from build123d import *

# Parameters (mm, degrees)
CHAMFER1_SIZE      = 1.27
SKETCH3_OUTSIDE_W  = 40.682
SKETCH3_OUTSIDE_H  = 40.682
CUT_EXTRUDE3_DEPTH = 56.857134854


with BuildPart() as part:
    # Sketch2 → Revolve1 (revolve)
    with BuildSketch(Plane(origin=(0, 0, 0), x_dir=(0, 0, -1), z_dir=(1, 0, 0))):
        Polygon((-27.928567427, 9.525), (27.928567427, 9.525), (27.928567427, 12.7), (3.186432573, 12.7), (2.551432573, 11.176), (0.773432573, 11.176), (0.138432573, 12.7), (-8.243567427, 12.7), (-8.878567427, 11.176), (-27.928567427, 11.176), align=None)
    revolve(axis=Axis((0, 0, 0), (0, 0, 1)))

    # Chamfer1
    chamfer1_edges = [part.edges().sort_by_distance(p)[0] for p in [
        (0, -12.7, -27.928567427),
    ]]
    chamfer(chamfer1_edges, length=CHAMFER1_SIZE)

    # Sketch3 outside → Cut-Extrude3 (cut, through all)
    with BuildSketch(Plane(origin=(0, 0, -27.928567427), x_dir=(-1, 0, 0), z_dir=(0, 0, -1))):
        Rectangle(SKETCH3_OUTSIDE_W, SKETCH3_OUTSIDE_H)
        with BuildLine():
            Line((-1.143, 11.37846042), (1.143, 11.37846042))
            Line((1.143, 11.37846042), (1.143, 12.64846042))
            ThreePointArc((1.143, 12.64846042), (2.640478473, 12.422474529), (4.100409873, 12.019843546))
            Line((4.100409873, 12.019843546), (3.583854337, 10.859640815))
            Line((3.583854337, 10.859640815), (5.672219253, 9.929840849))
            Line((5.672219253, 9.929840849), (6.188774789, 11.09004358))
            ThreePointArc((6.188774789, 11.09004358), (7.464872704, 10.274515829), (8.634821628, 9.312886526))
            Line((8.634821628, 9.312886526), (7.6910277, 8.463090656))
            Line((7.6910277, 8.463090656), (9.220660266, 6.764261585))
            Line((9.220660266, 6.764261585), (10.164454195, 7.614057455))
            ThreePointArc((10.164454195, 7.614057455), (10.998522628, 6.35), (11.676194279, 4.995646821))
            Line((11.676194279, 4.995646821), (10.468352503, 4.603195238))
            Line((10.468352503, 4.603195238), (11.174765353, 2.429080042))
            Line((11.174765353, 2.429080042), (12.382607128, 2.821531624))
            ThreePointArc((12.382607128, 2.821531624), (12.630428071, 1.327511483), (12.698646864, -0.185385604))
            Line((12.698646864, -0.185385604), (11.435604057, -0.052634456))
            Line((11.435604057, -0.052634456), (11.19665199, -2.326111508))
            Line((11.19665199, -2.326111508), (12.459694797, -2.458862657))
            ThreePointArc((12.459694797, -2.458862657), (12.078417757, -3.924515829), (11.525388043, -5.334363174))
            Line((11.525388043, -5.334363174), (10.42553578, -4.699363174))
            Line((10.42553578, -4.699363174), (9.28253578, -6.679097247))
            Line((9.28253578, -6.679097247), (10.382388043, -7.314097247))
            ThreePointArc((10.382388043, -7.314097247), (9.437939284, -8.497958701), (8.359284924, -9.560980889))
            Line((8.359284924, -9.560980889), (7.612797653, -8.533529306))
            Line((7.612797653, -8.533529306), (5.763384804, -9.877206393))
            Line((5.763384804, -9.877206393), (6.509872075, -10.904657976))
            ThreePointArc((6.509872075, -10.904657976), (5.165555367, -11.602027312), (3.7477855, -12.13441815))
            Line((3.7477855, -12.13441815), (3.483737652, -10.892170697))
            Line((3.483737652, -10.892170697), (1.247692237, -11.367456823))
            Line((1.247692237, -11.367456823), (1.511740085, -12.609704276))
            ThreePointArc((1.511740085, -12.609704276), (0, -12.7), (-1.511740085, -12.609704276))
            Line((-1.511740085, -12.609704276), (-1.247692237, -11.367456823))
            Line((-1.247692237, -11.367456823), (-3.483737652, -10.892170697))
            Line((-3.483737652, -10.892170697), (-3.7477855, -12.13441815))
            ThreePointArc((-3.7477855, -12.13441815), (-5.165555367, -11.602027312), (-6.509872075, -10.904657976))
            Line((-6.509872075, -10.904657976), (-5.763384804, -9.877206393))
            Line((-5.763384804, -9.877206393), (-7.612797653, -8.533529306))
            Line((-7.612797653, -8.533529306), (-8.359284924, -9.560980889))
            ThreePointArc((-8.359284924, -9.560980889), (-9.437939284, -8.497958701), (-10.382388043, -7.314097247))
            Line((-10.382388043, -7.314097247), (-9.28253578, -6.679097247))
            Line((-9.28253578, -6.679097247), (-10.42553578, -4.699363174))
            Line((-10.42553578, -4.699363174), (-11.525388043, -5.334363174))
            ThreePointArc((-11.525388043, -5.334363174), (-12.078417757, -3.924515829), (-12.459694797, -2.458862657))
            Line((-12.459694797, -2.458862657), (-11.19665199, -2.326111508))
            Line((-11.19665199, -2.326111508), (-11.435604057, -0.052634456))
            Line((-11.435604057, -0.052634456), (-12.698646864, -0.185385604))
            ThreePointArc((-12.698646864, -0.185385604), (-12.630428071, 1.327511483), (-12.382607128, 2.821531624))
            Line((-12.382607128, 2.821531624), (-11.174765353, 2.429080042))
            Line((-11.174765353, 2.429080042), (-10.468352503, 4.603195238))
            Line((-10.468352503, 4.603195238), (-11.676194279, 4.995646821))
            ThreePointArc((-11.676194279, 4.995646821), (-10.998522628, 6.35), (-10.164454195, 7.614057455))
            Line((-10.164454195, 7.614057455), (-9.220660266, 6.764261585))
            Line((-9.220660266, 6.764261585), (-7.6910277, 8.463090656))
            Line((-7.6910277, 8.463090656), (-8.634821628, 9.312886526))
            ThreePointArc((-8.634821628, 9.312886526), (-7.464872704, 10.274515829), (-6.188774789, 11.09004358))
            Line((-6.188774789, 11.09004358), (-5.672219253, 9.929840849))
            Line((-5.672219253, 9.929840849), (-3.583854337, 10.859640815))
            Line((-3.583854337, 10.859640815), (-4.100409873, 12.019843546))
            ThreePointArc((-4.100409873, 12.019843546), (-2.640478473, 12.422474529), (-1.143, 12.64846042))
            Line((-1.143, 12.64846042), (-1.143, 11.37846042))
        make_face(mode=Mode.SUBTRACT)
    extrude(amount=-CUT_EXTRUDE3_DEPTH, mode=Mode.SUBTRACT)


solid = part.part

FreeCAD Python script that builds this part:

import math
import FreeCAD as App
import Part
import Sketcher

V = App.Vector
Q = App.Units.Quantity


def edges_at(feature, points):
    """Names of the edges that pass closest to the given points."""
    edges = feature.Shape.Edges
    near = lambda p: min(range(len(edges)), key=lambda i: edges[i].distToShape(Part.Vertex(*p))[0])
    return sorted({f"Edge{near(p) + 1}" for p in points})


def add_polygon(sketch, points):
    """Adds a closed chain of lines whose ends are joined by coincident constraints."""
    first, n = sketch.GeometryCount, len(points)
    for a, b in zip(points, points[1:] + points[:1]):
        sketch.addGeometry(Part.LineSegment(App.Vector(*a, 0), App.Vector(*b, 0)), False)
    for i in range(n):
        sketch.addConstraint(Sketcher.Constraint("Coincident", first + i, 2, first + (i + 1) % n, 1))

doc = App.newDocument("Part")
body = doc.addObject("PartDesign::Body", "Body")

# Sketch on YZ plane
sketch1 = body.newObject("Sketcher::SketchObject", "Sketch")
sketch1.AttachmentSupport = (doc.getObject("YZ_Plane"), [""])
sketch1.MapMode = "FlatFace"
add_polygon(sketch1, [(9.5, 27.9), (9.5, -27.9), (12.7, -27.9), (12.7, -3.2), (11.2, -2.6), (11.2, -0.8), (12.7, -0.1), (12.7, 8.2), (11.2, 8.9), (11.2, 27.9)])  # lines 0-9
sketch1.addConstraint([
    Sketcher.Constraint("Vertical", 0),
    Sketcher.Constraint("Horizontal", 1),
    Sketcher.Constraint("Vertical", 2),
    Sketcher.Constraint("Vertical", 4),
    Sketcher.Constraint("Vertical", 6),
    Sketcher.Constraint("Vertical", 8),
    Sketcher.Constraint("Horizontal", 9),
    Sketcher.Constraint("Parallel", 3, 7),
    Sketcher.Constraint("Vertical", 2, 2, 5, 2),
    Sketcher.Constraint("Vertical", 4, 2, 7, 2),
    Sketcher.Constraint("Equal", 3, 5),
    Sketcher.Constraint("DistanceY", 4, 1, 4, 2, Q("0.07 in")),
    Sketcher.Constraint("DistanceY", 6, 1, 6, 2, Q("0.33 in")),
    Sketcher.Constraint("DistanceY", 8, 1, 8, 2, Q("0.75 in")),
    Sketcher.Constraint("DistanceX", -1, 1, 1, 2, Q("0.5 in")),
    Sketcher.Constraint("DistanceY", 3, 2, 8, 2, Q("1.2 in")),
    Sketcher.Constraint("DistanceX", 1, 1, 1, 2, Q("0.125 in")),
    Sketcher.Constraint("DistanceX", 9, 2, 9, 1, Q("0.065 in")),
    Sketcher.Constraint("DistanceY", 0, 2, 0, 1, 55.857135),
    Sketcher.Constraint("DistanceY", 0, 2, -1, 1, 27.928567),
])
revolution = body.newObject("PartDesign::Revolution", "Revolution")
revolution.Profile = sketch1
revolution.ReferenceAxis = (sketch1, ["V_Axis"])
revolution.Angle = 360
doc.recompute()

chamfer = body.newObject("PartDesign::Chamfer", "Chamfer")
chamfer.Base = (revolution, edges_at(revolution, [(0, -12.7, -27.929)]))
chamfer.Size = Q("0.05 in")

# Sketch on XY plane
sketch2 = body.newObject("Sketcher::SketchObject", "Sketch001")
sketch2.AttachmentSupport = (doc.getObject("XY_Plane"), [""])
sketch2.MapMode = "FlatFace"
sketch2.AttachmentOffset = App.Placement(V(0, 0, -27.928567), App.Rotation())
add_polygon(sketch2, [(20.3, 20.3), (20.3, -20.3), (-20.3, -20.3), (-20.3, 20.3)])  # lines 0-3
sketch2.addGeometry(Part.LineSegment(V(1.1, 12.6, 0), V(1.1, 11.4, 0)), False)  # 4
sketch2.addGeometry(Part.LineSegment(V(1.1, 11.4, 0), V(-1.1, 11.4, 0)), False)  # 5
sketch2.addGeometry(Part.LineSegment(V(-1.1, 11.4, 0), V(-1.1, 12.6, 0)), False)  # 6
sketch2.addGeometry(Part.ArcOfCircle(Part.Circle(V(0, 0, 0), V(0, 0, 1), 12.7), math.radians(95.16), math.radians(108.84)), False)  # 7
sketch2.addGeometry(Part.LineSegment(V(-4.1, 12, 0), V(-3.6, 10.9, 0)), False)  # 8
sketch2.addGeometry(Part.LineSegment(V(-3.6, 10.9, 0), V(-5.7, 9.9, 0)), False)  # 9
sketch2.addGeometry(Part.LineSegment(V(-5.7, 9.9, 0), V(-6.2, 11.1, 0)), False)  # 10
sketch2.addGeometry(Part.ArcOfCircle(Part.Circle(V(0, 0, 0), V(0, 0, 1), 12.7), math.radians(119.16), math.radians(132.84)), False)  # 11
sketch2.addGeometry(Part.LineSegment(V(-8.6, 9.3, 0), V(-7.7, 8.5, 0)), False)  # 12
sketch2.addGeometry(Part.LineSegment(V(-7.7, 8.5, 0), V(-9.2, 6.8, 0)), False)  # 13
sketch2.addGeometry(Part.LineSegment(V(-9.2, 6.8, 0), V(-10.2, 7.6, 0)), False)  # 14
sketch2.addGeometry(Part.ArcOfCircle(Part.Circle(V(0, 0, 0), V(0, 0, 1), 12.7), math.radians(143.16), math.radians(156.84)), False)  # 15
sketch2.addGeometry(Part.LineSegment(V(-11.7, 5, 0), V(-10.5, 4.6, 0)), False)  # 16
sketch2.addGeometry(Part.LineSegment(V(-10.5, 4.6, 0), V(-11.2, 2.4, 0)), False)  # 17
sketch2.addGeometry(Part.LineSegment(V(-11.2, 2.4, 0), V(-12.4, 2.8, 0)), False)  # 18
sketch2.addGeometry(Part.ArcOfCircle(Part.Circle(V(0, 0, 0), V(0, 0, 1), 12.7), math.radians(167.16), math.radians(180.84)), False)  # 19
sketch2.addGeometry(Part.LineSegment(V(-12.7, -0.2, 0), V(-11.4, -0.1, 0)), False)  # 20
sketch2.addGeometry(Part.LineSegment(V(-11.4, -0.1, 0), V(-11.2, -2.3, 0)), False)  # 21
sketch2.addGeometry(Part.LineSegment(V(-11.2, -2.3, 0), V(-12.5, -2.5, 0)), False)  # 22
sketch2.addGeometry(Part.ArcOfCircle(Part.Circle(V(0, 0, 0), V(0, 0, 1), 12.7), math.radians(-168.84), math.radians(-155.16)), False)  # 23
sketch2.addGeometry(Part.LineSegment(V(-11.5, -5.3, 0), V(-10.4, -4.7, 0)), False)  # 24
sketch2.addGeometry(Part.LineSegment(V(-10.4, -4.7, 0), V(-9.3, -6.7, 0)), False)  # 25
sketch2.addGeometry(Part.LineSegment(V(-9.3, -6.7, 0), V(-10.4, -7.3, 0)), False)  # 26
sketch2.addGeometry(Part.ArcOfCircle(Part.Circle(V(0, 0, 0), V(0, 0, 1), 12.7), math.radians(-144.84), math.radians(-131.16)), False)  # 27
sketch2.addGeometry(Part.LineSegment(V(-8.4, -9.6, 0), V(-7.6, -8.5, 0)), False)  # 28
sketch2.addGeometry(Part.LineSegment(V(-7.6, -8.5, 0), V(-5.8, -9.9, 0)), False)  # 29
sketch2.addGeometry(Part.LineSegment(V(-5.8, -9.9, 0), V(-6.5, -10.9, 0)), False)  # 30
sketch2.addGeometry(Part.ArcOfCircle(Part.Circle(V(0, 0, 0), V(0, 0, 1), 12.7), math.radians(-120.84), math.radians(-107.16)), False)  # 31
sketch2.addGeometry(Part.LineSegment(V(-3.7, -12.1, 0), V(-3.5, -10.9, 0)), False)  # 32
sketch2.addGeometry(Part.LineSegment(V(-3.5, -10.9, 0), V(-1.2, -11.4, 0)), False)  # 33
sketch2.addGeometry(Part.LineSegment(V(-1.2, -11.4, 0), V(-1.5, -12.6, 0)), False)  # 34
sketch2.addGeometry(Part.ArcOfCircle(Part.Circle(V(0, 0, 0), V(0, 0, 1), 12.7), math.radians(-96.84), math.radians(-83.16)), False)  # 35
sketch2.addGeometry(Part.LineSegment(V(1.5, -12.6, 0), V(1.2, -11.4, 0)), False)  # 36
sketch2.addGeometry(Part.LineSegment(V(1.2, -11.4, 0), V(3.5, -10.9, 0)), False)  # 37
sketch2.addGeometry(Part.LineSegment(V(3.5, -10.9, 0), V(3.7, -12.1, 0)), False)  # 38
sketch2.addGeometry(Part.ArcOfCircle(Part.Circle(V(0, 0, 0), V(0, 0, 1), 12.7), math.radians(-72.84), math.radians(-59.16)), False)  # 39
sketch2.addGeometry(Part.LineSegment(V(6.5, -10.9, 0), V(5.8, -9.9, 0)), False)  # 40
sketch2.addGeometry(Part.LineSegment(V(5.8, -9.9, 0), V(7.6, -8.5, 0)), False)  # 41
sketch2.addGeometry(Part.LineSegment(V(7.6, -8.5, 0), V(8.4, -9.6, 0)), False)  # 42
sketch2.addGeometry(Part.ArcOfCircle(Part.Circle(V(0, 0, 0), V(0, 0, 1), 12.7), math.radians(-48.84), math.radians(-35.16)), False)  # 43
sketch2.addGeometry(Part.LineSegment(V(10.4, -7.3, 0), V(9.3, -6.7, 0)), False)  # 44
sketch2.addGeometry(Part.LineSegment(V(9.3, -6.7, 0), V(10.4, -4.7, 0)), False)  # 45
sketch2.addGeometry(Part.LineSegment(V(10.4, -4.7, 0), V(11.5, -5.3, 0)), False)  # 46
sketch2.addGeometry(Part.ArcOfCircle(Part.Circle(V(0, 0, 0), V(0, 0, 1), 12.7), math.radians(-24.84), math.radians(-11.16)), False)  # 47
sketch2.addGeometry(Part.LineSegment(V(12.5, -2.5, 0), V(11.2, -2.3, 0)), False)  # 48
sketch2.addGeometry(Part.LineSegment(V(11.2, -2.3, 0), V(11.4, -0.1, 0)), False)  # 49
sketch2.addGeometry(Part.LineSegment(V(11.4, -0.1, 0), V(12.7, -0.2, 0)), False)  # 50
sketch2.addGeometry(Part.ArcOfCircle(Part.Circle(V(0, 0, 0), V(0, 0, 1), 12.7), math.radians(-0.84), math.radians(12.84)), False)  # 51
sketch2.addGeometry(Part.LineSegment(V(12.4, 2.8, 0), V(11.2, 2.4, 0)), False)  # 52
sketch2.addGeometry(Part.LineSegment(V(11.2, 2.4, 0), V(10.5, 4.6, 0)), False)  # 53
sketch2.addGeometry(Part.LineSegment(V(10.5, 4.6, 0), V(11.7, 5, 0)), False)  # 54
sketch2.addGeometry(Part.ArcOfCircle(Part.Circle(V(0, 0, 0), V(0, 0, 1), 12.7), math.radians(23.16), math.radians(36.84)), False)  # 55
sketch2.addGeometry(Part.LineSegment(V(10.2, 7.6, 0), V(9.2, 6.8, 0)), False)  # 56
sketch2.addGeometry(Part.LineSegment(V(9.2, 6.8, 0), V(7.7, 8.5, 0)), False)  # 57
sketch2.addGeometry(Part.LineSegment(V(7.7, 8.5, 0), V(8.6, 9.3, 0)), False)  # 58
sketch2.addGeometry(Part.ArcOfCircle(Part.Circle(V(0, 0, 0), V(0, 0, 1), 12.7), math.radians(47.16), math.radians(60.84)), False)  # 59
sketch2.addGeometry(Part.LineSegment(V(6.2, 11.1, 0), V(5.7, 9.9, 0)), False)  # 60
sketch2.addGeometry(Part.LineSegment(V(5.7, 9.9, 0), V(3.6, 10.9, 0)), False)  # 61
sketch2.addGeometry(Part.LineSegment(V(3.6, 10.9, 0), V(4.1, 12, 0)), False)  # 62
sketch2.addGeometry(Part.ArcOfCircle(Part.Circle(V(0, 0, 0), V(0, 0, 1), 12.7), math.radians(71.16), math.radians(84.84)), False)  # 63
sketch2.addConstraint([
    Sketcher.Constraint("Coincident", 4, 2, 5, 1),
    Sketcher.Constraint("Coincident", 5, 2, 6, 1),
    Sketcher.Constraint("Coincident", 6, 2, 7, 1),
    Sketcher.Constraint("Coincident", 7, 2, 8, 1),
    Sketcher.Constraint("Coincident", 8, 2, 9, 1),
    Sketcher.Constraint("Coincident", 9, 2, 10, 1),
    Sketcher.Constraint("Coincident", 10, 2, 11, 1),
    Sketcher.Constraint("Coincident", 11, 2, 12, 1),
    Sketcher.Constraint("Coincident", 12, 2, 13, 1),
    Sketcher.Constraint("Coincident", 13, 2, 14, 1),
    Sketcher.Constraint("Coincident", 14, 2, 15, 1),
    Sketcher.Constraint("Coincident", 15, 2, 16, 1),
    Sketcher.Constraint("Coincident", 16, 2, 17, 1),
    Sketcher.Constraint("Coincident", 17, 2, 18, 1),
    Sketcher.Constraint("Coincident", 18, 2, 19, 1),
    Sketcher.Constraint("Coincident", 19, 2, 20, 1),
    Sketcher.Constraint("Coincident", 20, 2, 21, 1),
    Sketcher.Constraint("Coincident", 21, 2, 22, 1),
    Sketcher.Constraint("Coincident", 22, 2, 23, 1),
    Sketcher.Constraint("Coincident", 23, 2, 24, 1),
    Sketcher.Constraint("Coincident", 24, 2, 25, 1),
    Sketcher.Constraint("Coincident", 25, 2, 26, 1),
    Sketcher.Constraint("Coincident", 26, 2, 27, 1),
    Sketcher.Constraint("Coincident", 27, 2, 28, 1),
    Sketcher.Constraint("Coincident", 28, 2, 29, 1),
    Sketcher.Constraint("Coincident", 29, 2, 30, 1),
    Sketcher.Constraint("Coincident", 30, 2, 31, 1),
    Sketcher.Constraint("Coincident", 31, 2, 32, 1),
    Sketcher.Constraint("Coincident", 32, 2, 33, 1),
    Sketcher.Constraint("Coincident", 33, 2, 34, 1),
    Sketcher.Constraint("Coincident", 34, 2, 35, 1),
    Sketcher.Constraint("Coincident", 35, 2, 36, 1),
    Sketcher.Constraint("Coincident", 36, 2, 37, 1),
    Sketcher.Constraint("Coincident", 37, 2, 38, 1),
    Sketcher.Constraint("Coincident", 38, 2, 39, 1),
    Sketcher.Constraint("Coincident", 39, 2, 40, 1),
    Sketcher.Constraint("Coincident", 40, 2, 41, 1),
    Sketcher.Constraint("Coincident", 41, 2, 42, 1),
    Sketcher.Constraint("Coincident", 42, 2, 43, 1),
    Sketcher.Constraint("Coincident", 43, 2, 44, 1),
    Sketcher.Constraint("Coincident", 44, 2, 45, 1),
    Sketcher.Constraint("Coincident", 45, 2, 46, 1),
    Sketcher.Constraint("Coincident", 46, 2, 47, 1),
    Sketcher.Constraint("Coincident", 47, 2, 48, 1),
    Sketcher.Constraint("Coincident", 48, 2, 49, 1),
    Sketcher.Constraint("Coincident", 49, 2, 50, 1),
    Sketcher.Constraint("Coincident", 50, 2, 51, 1),
    Sketcher.Constraint("Coincident", 51, 2, 52, 1),
    Sketcher.Constraint("Coincident", 52, 2, 53, 1),
    Sketcher.Constraint("Coincident", 53, 2, 54, 1),
    Sketcher.Constraint("Coincident", 54, 2, 55, 1),
    Sketcher.Constraint("Coincident", 55, 2, 56, 1),
    Sketcher.Constraint("Coincident", 56, 2, 57, 1),
    Sketcher.Constraint("Coincident", 57, 2, 58, 1),
    Sketcher.Constraint("Coincident", 58, 2, 59, 1),
    Sketcher.Constraint("Coincident", 59, 2, 60, 1),
    Sketcher.Constraint("Coincident", 60, 2, 61, 1),
    Sketcher.Constraint("Coincident", 61, 2, 62, 1),
    Sketcher.Constraint("Coincident", 62, 2, 63, 1),
    Sketcher.Constraint("Coincident", 63, 2, 4, 1),
    Sketcher.Constraint("Vertical", 0),
    Sketcher.Constraint("Horizontal", 1),
    Sketcher.Constraint("Vertical", 2),
    Sketcher.Constraint("Horizontal", 3),
    Sketcher.Constraint("Vertical", 4),
    Sketcher.Constraint("Horizontal", 5),
    Sketcher.Constraint("Vertical", 6),
    Sketcher.Constraint("Coincident", 7, 3, -1, 1),
    Sketcher.Constraint("Coincident", 11, 3, -1, 1),
    Sketcher.Constraint("Coincident", 15, 3, -1, 1),
    Sketcher.Constraint("Coincident", 19, 3, -1, 1),
    Sketcher.Constraint("Coincident", 23, 3, -1, 1),
    Sketcher.Constraint("Coincident", 27, 3, -1, 1),
    Sketcher.Constraint("Coincident", 31, 3, -1, 1),
    Sketcher.Constraint("Coincident", 35, 3, -1, 1),
    Sketcher.Constraint("Coincident", 39, 3, -1, 1),
    Sketcher.Constraint("Coincident", 43, 3, -1, 1),
    Sketcher.Constraint("Coincident", 47, 3, -1, 1),
    Sketcher.Constraint("Coincident", 51, 3, -1, 1),
    Sketcher.Constraint("Coincident", 55, 3, -1, 1),
    Sketcher.Constraint("Coincident", 59, 3, -1, 1),
    Sketcher.Constraint("Coincident", 63, 3, -1, 1),
    Sketcher.Constraint("Equal", 7, 11),
    Sketcher.Constraint("Equal", 11, 15),
    Sketcher.Constraint("Equal", 15, 19),
    Sketcher.Constraint("Equal", 19, 23),
    Sketcher.Constraint("Equal", 23, 27),
    Sketcher.Constraint("Equal", 27, 31),
    Sketcher.Constraint("Equal", 31, 35),
    Sketcher.Constraint("Equal", 35, 39),
    Sketcher.Constraint("Equal", 39, 43),
    Sketcher.Constraint("Equal", 43, 47),
    Sketcher.Constraint("Equal", 47, 51),
    Sketcher.Constraint("Equal", 51, 55),
    Sketcher.Constraint("Equal", 55, 59),
    Sketcher.Constraint("Equal", 59, 63),
    Sketcher.Constraint("Symmetric", 0, 2, 2, 2, -1, 1),
    Sketcher.Constraint("Symmetric", 33, 2, 36, 2, -2),
    Sketcher.Constraint("Symmetric", 32, 2, 37, 2, -2),
    Sketcher.Constraint("Symmetric", 29, 2, 40, 2, -2),
    Sketcher.Constraint("Symmetric", 28, 2, 41, 2, -2),
    Sketcher.Constraint("Symmetric", 25, 2, 44, 2, -2),
    Sketcher.Constraint("Symmetric", 24, 2, 45, 2, -2),
    Sketcher.Constraint("Symmetric", 21, 2, 48, 2, -2),
    Sketcher.Constraint("Symmetric", 20, 2, 49, 2, -2),
    Sketcher.Constraint("Symmetric", 17, 2, 52, 2, -2),
    Sketcher.Constraint("Symmetric", 16, 2, 53, 2, -2),
    Sketcher.Constraint("Symmetric", 13, 2, 56, 2, -2),
    Sketcher.Constraint("Symmetric", 12, 2, 57, 2, -2),
    Sketcher.Constraint("Symmetric", 9, 2, 60, 2, -2),
    Sketcher.Constraint("Symmetric", 8, 2, 61, 2, -2),
    Sketcher.Constraint("Perpendicular", 8, 9),
    Sketcher.Constraint("Perpendicular", 9, 10),
    Sketcher.Constraint("Perpendicular", 12, 13),
    Sketcher.Constraint("Perpendicular", 13, 14),
    Sketcher.Constraint("Perpendicular", 16, 17),
    Sketcher.Constraint("Perpendicular", 17, 18),
    Sketcher.Constraint("Perpendicular", 20, 21),
    Sketcher.Constraint("Perpendicular", 21, 22),
    Sketcher.Constraint("Perpendicular", 24, 25),
    Sketcher.Constraint("Perpendicular", 25, 26),
    Sketcher.Constraint("Perpendicular", 28, 29),
    Sketcher.Constraint("Perpendicular", 29, 30),
    Sketcher.Constraint("Perpendicular", 32, 33),
    Sketcher.Constraint("Perpendicular", 33, 34),
    Sketcher.Constraint("Perpendicular", 36, 37),
    Sketcher.Constraint("Perpendicular", 37, 38),
    Sketcher.Constraint("Perpendicular", 40, 41),
    Sketcher.Constraint("Perpendicular", 41, 42),
    Sketcher.Constraint("Perpendicular", 44, 45),
    Sketcher.Constraint("Perpendicular", 45, 46),
    Sketcher.Constraint("Perpendicular", 48, 49),
    Sketcher.Constraint("Perpendicular", 49, 50),
    Sketcher.Constraint("Perpendicular", 52, 53),
    Sketcher.Constraint("Perpendicular", 53, 54),
    Sketcher.Constraint("Perpendicular", 56, 57),
    Sketcher.Constraint("Perpendicular", 57, 58),
    Sketcher.Constraint("Perpendicular", 60, 61),
    Sketcher.Constraint("Perpendicular", 61, 62),
    Sketcher.Constraint("Horizontal", 6, 2, 63, 2),
    Sketcher.Constraint("Equal", 3, 0),
    Sketcher.Constraint("Equal", 8, 10),
    Sketcher.Constraint("Equal", 10, 12),
    Sketcher.Constraint("Equal", 9, 13),
    Sketcher.Constraint("Equal", 12, 14),
    Sketcher.Constraint("Equal", 14, 16),
    Sketcher.Constraint("Equal", 13, 17),
    Sketcher.Constraint("Equal", 16, 18),
    Sketcher.Constraint("Equal", 18, 20),
    Sketcher.Constraint("Equal", 17, 21),
    Sketcher.Constraint("Equal", 20, 22),
    Sketcher.Constraint("Equal", 22, 24),
    Sketcher.Constraint("Equal", 21, 25),
    Sketcher.Constraint("Equal", 24, 26),
    Sketcher.Constraint("Equal", 26, 28),
    Sketcher.Constraint("Equal", 25, 29),
    Sketcher.Constraint("Equal", 28, 30),
    Sketcher.Constraint("Equal", 30, 32),
    Sketcher.Constraint("Equal", 29, 33),
    Sketcher.Constraint("Equal", 32, 34),
    Sketcher.Constraint("Radius", 7, Q("0.5 in")),
    Sketcher.Constraint("Angle", 8, Q("-66 deg")),
    Sketcher.Constraint("Angle", 12, Q("-42 deg")),
    Sketcher.Constraint("Angle", 16, Q("-18 deg")),
    Sketcher.Constraint("Angle", 20, Q("6 deg")),
    Sketcher.Constraint("Angle", 24, Q("30 deg")),
    Sketcher.Constraint("Angle", 28, Q("54 deg")),
    Sketcher.Constraint("Angle", 32, Q("78 deg")),
    Sketcher.Constraint("DistanceX", 5, 2, 5, 1, Q("0.09 in")),
    Sketcher.Constraint("DistanceY", 4, 2, 4, 1, Q("0.05 in")),
    Sketcher.Constraint("Distance", 8, Q("0.05 in")),
    Sketcher.Constraint("Distance", 9, Q("0.09 in")),
    Sketcher.Constraint("DistanceX", 1, 2, 1, 1, 40.682),
])
pocket1 = body.newObject("PartDesign::Pocket", "Pocket")
pocket1.Profile = sketch2
pocket1.Type = "ThroughAll"
pocket1.Reversed = True

doc.recompute()
